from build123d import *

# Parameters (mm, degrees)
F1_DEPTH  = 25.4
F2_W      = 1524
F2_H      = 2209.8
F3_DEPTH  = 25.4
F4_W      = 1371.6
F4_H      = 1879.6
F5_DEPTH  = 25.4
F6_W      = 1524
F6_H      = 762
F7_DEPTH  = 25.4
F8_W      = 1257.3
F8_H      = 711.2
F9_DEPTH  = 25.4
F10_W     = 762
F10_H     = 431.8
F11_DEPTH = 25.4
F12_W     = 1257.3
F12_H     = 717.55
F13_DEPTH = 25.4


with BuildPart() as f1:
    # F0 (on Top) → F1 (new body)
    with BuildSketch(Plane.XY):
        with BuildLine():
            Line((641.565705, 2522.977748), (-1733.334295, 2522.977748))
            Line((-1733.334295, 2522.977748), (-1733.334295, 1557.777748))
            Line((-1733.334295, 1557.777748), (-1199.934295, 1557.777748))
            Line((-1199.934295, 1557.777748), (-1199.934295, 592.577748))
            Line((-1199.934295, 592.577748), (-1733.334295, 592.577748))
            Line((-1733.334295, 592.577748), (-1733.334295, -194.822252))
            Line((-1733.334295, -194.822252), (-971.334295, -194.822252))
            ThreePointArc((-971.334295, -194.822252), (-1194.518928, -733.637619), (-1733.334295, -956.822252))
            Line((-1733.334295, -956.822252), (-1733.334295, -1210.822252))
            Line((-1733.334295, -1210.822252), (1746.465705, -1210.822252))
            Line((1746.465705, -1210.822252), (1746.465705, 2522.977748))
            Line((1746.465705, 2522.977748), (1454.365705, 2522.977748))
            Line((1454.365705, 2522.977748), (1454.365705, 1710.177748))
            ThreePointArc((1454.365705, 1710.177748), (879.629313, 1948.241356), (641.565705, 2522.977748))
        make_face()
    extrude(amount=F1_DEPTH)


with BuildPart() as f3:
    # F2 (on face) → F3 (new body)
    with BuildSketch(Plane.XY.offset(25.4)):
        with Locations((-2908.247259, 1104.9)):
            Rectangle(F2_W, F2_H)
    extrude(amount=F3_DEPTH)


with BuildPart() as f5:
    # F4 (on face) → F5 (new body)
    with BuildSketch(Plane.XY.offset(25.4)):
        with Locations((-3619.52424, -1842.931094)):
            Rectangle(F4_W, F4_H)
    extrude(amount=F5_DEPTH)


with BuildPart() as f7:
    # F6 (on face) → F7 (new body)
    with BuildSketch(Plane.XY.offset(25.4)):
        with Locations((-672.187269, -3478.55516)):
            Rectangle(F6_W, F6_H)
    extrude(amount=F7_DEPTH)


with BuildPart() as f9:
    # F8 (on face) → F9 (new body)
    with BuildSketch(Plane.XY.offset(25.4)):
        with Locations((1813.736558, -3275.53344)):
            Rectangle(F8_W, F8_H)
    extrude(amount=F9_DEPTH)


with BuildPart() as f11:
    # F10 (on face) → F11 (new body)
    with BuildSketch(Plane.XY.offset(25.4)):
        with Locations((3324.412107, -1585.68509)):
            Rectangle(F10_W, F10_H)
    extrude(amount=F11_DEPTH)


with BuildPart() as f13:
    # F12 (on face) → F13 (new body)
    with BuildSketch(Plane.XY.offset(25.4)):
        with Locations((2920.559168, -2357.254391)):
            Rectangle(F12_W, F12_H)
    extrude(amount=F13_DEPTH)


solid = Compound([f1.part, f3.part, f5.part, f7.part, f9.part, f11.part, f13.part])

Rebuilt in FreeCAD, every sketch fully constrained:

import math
import FreeCAD as App
import Part
import Sketcher
Q = App.Units.Quantity


def add_polygon(sketch, points):
    """Adds a closed chain of lines whose ends are joined by coincident constraints."""
    first, n = sketch.GeometryCount, len(points)
    for a, b in zip(points, points[1:] + points[:1]):
        sketch.addGeometry(Part.LineSegment(App.Vector(*a, 0), App.Vector(*b, 0)), False)
    for i in range(n):
        sketch.addConstraint(Sketcher.Constraint("Coincident", first + i, 2, first + (i + 1) % n, 1))

doc = App.newDocument("Part")
body = doc.addObject("PartDesign::Body", "Body")

# Sketch on XY plane
sketch1 = body.newObject("Sketcher::SketchObject", "Sketch")
sketch1.AttachmentSupport = (doc.getObject("XY_Plane"), [""])
sketch1.MapMode = "FlatFace"
sketch1.addGeometry(Part.LineSegment(App.Vector(642, 2523, 0), App.Vector(-1733, 2523, 0)), False)
sketch1.addGeometry(Part.LineSegment(App.Vector(-1733, 2523, 0), App.Vector(-1733, 1558, 0)), False)
sketch1.addGeometry(Part.LineSegment(App.Vector(-1733, 1558, 0), App.Vector(-1200, 1558, 0)), False)
sketch1.addGeometry(Part.LineSegment(App.Vector(-1200, 1558, 0), App.Vector(-1200, 593, 0)), False)
sketch1.addGeometry(Part.LineSegment(App.Vector(-1200, 593, 0), App.Vector(-1733, 593, 0)), False)
sketch1.addGeometry(Part.LineSegment(App.Vector(-1733, 593, 0), App.Vector(-1733, -195, 0)), False)
sketch1.addGeometry(Part.LineSegment(App.Vector(-1733, -195, 0), App.Vector(-971, -195, 0)), False)
sketch1.addGeometry(Part.ArcOfCircle(Part.Circle(App.Vector(-1733, -195, 0), App.Vector(0, 0, 1), 762), math.radians(-90), math.radians(0)), False)
sketch1.addGeometry(Part.LineSegment(App.Vector(-1733, -957, 0), App.Vector(-1733, -1211, 0)), False)
sketch1.addGeometry(Part.LineSegment(App.Vector(-1733, -1211, 0), App.Vector(1746, -1211, 0)), False)
sketch1.addGeometry(Part.LineSegment(App.Vector(1746, -1211, 0), App.Vector(1746, 2523, 0)), False)
sketch1.addGeometry(Part.LineSegment(App.Vector(1746, 2523, 0), App.Vector(1454, 2523, 0)), False)
sketch1.addGeometry(Part.LineSegment(App.Vector(1454, 2523, 0), App.Vector(1454, 1710, 0)), False)
sketch1.addGeometry(Part.ArcOfCircle(Part.Circle(App.Vector(1454, 2523, 0), App.Vector(0, 0, 1), 813), math.radians(180), math.radians(270)), False)
sketch1.addConstraint(Sketcher.Constraint("Coincident", 0, 2, 1, 1))
sketch1.addConstraint(Sketcher.Constraint("Coincident", 1, 2, 2, 1))
sketch1.addConstraint(Sketcher.Constraint("Coincident", 2, 2, 3, 1))
sketch1.addConstraint(Sketcher.Constraint("Coincident", 3, 2, 4, 1))
sketch1.addConstraint(Sketcher.Constraint("Coincident", 4, 2, 5, 1))
sketch1.addConstraint(Sketcher.Constraint("Coincident", 5, 2, 6, 1))
sketch1.addConstraint(Sketcher.Constraint("Coincident", 6, 2, 7, 2))
sketch1.addConstraint(Sketcher.Constraint("Coincident", 7, 1, 8, 1))
sketch1.addConstraint(Sketcher.Constraint("Coincident", 8, 2, 9, 1))
sketch1.addConstraint(Sketcher.Constraint("Coincident", 9, 2, 10, 1))
sketch1.addConstraint(Sketcher.Constraint("Coincident", 10, 2, 11, 1))
sketch1.addConstraint(Sketcher.Constraint("Coincident", 11, 2, 12, 1))
sketch1.addConstraint(Sketcher.Constraint("Coincident", 12, 2, 13, 2))
sketch1.addConstraint(Sketcher.Constraint("Coincident", 13, 1, 0, 1))
sketch1.addConstraint(Sketcher.Constraint("Horizontal", 0))
sketch1.addConstraint(Sketcher.Constraint("Vertical", 1))
sketch1.addConstraint(Sketcher.Constraint("Horizontal", 2))
sketch1.addConstraint(Sketcher.Constraint("Vertical", 3))
sketch1.addConstraint(Sketcher.Constraint("Horizontal", 4))
sketch1.addConstraint(Sketcher.Constraint("Vertical", 5))
sketch1.addConstraint(Sketcher.Constraint("Horizontal", 6))
sketch1.addConstraint(Sketcher.Constraint("Vertical", 8))
sketch1.addConstraint(Sketcher.Constraint("Horizontal", 9))
sketch1.addConstraint(Sketcher.Constraint("Vertical", 10))
sketch1.addConstraint(Sketcher.Constraint("Horizontal", 11))
sketch1.addConstraint(Sketcher.Constraint("Vertical", 12))
sketch1.addConstraint(Sketcher.Constraint("Coincident", 5, 2, 7, 3))
sketch1.addConstraint(Sketcher.Constraint("Coincident", 11, 2, 13, 3))
sketch1.addConstraint(Sketcher.Constraint("Horizontal", 13, 3, 0, 2))
sketch1.addConstraint(Sketcher.Constraint("Vertical", 7, 3, 0, 2))
sketch1.addConstraint(Sketcher.Constraint("Equal", 1, 3))
sketch1.addConstraint(Sketcher.Constraint("Radius", 7, Q("30 in")))
sketch1.addConstraint(Sketcher.Constraint("Radius", 13, Q("32 in")))
sketch1.addConstraint(Sketcher.Constraint("DistanceX", 2, 1, 2, 2, Q("21 in")))
sketch1.addConstraint(Sketcher.Constraint("DistanceX", 9, 1, 9, 2, Q("137 in")))
sketch1.addConstraint(Sketcher.Constraint("DistanceY", 1, 2, 1, 1, Q("38 in")))
sketch1.addConstraint(Sketcher.Constraint("DistanceY", 5, 2, 5, 1, Q("31 in")))
sketch1.addConstraint(Sketcher.Constraint("DistanceY", 8, 2, 8, 1, Q("10 in")))
sketch1.addConstraint(Sketcher.Constraint("DistanceX", 0, 2, 0, 1, Q("93.5 in")))
sketch1.addConstraint(Sketcher.Constraint("DistanceX", 11, 2, 11, 1, Q("11.5 in")))
sketch1.addConstraint(Sketcher.Constraint("DistanceY", 7, 3, -1, 1, 194.822251))
sketch1.addConstraint(Sketcher.Constraint("DistanceX", 7, 3, -1, 1, 1733.334296))
pad1 = body.newObject("PartDesign::Pad", "Pad")
pad1.Profile = sketch1
pad1.Length = Q("1 in")
body2 = doc.addObject("PartDesign::Body", "Body001")

# Sketch on XY plane
sketch2 = body2.newObject("Sketcher::SketchObject", "Sketch001")
sketch2.AttachmentSupport = (doc.getObject("XY_Plane001"), [""])
sketch2.MapMode = "FlatFace"
sketch2.AttachmentOffset = App.Placement(App.Vector(0, 0, 1 * 25.4), App.Rotation())
add_polygon(sketch2, [(-3670, 2210), (-3670, 0), (-2146, 0), (-2146, 2210)])  # lines 0-3
sketch2.addConstraint(Sketcher.Constraint("Vertical", 0))
sketch2.addConstraint(Sketcher.Constraint("Horizontal", 1))
sketch2.addConstraint(Sketcher.Constraint("Vertical", 2))
sketch2.addConstraint(Sketcher.Constraint("Horizontal", 3))
sketch2.addConstraint(Sketcher.Constraint("PointOnObject", 0, 2, -1))
sketch2.addConstraint(Sketcher.Constraint("DistanceX", 1, 1, 1, 2, Q("60 in")))
sketch2.addConstraint(Sketcher.Constraint("DistanceY", 0, 2, 0, 1, Q("87 in")))
sketch2.addConstraint(Sketcher.Constraint("DistanceX", 0, 2, -1, 1, 3670.247259))
pad2 = body2.newObject("PartDesign::Pad", "Pad001")
pad2.Profile = sketch2
pad2.Length = Q("1 in")
body3 = doc.addObject("PartDesign::Body", "Body002")

# Sketch on XY plane
sketch3 = body3.newObject("Sketcher::SketchObject", "Sketch002")
sketch3.AttachmentSupport = (doc.getObject("XY_Plane002"), [""])
sketch3.MapMode = "FlatFace"
sketch3.AttachmentOffset = App.Placement(App.Vector(0, 0, 1 * 25.4), App.Rotation())
add_polygon(sketch3, [(-4305, -903), (-4305, -2783), (-2934, -2783), (-2934, -903)])  # lines 0-3
sketch3.addConstraint(Sketcher.Constraint("Vertical", 0))
sketch3.addConstraint(Sketcher.Constraint("Horizontal", 1))
sketch3.addConstraint(Sketcher.Constraint("Vertical", 2))
sketch3.addConstraint(Sketcher.Constraint("Horizontal", 3))
sketch3.addConstraint(Sketcher.Constraint("DistanceX", 1, 1, 1, 2, Q("54 in")))
sketch3.addConstraint(Sketcher.Constraint("DistanceY", 0, 2, 0, 1, Q("74 in")))
sketch3.addConstraint(Sketcher.Constraint("DistanceX", 0, 2, -1, 1, 4305.32424))
sketch3.addConstraint(Sketcher.Constraint("DistanceY", 0, 2, -1, 1, 2782.731094))
pad3 = body3.newObject("PartDesign::Pad", "Pad002")
pad3.Profile = sketch3
pad3.Length = Q("1 in")
body4 = doc.addObject("PartDesign::Body", "Body003")

# Sketch on XY plane
sketch4 = body4.newObject("Sketcher::SketchObject", "Sketch003")
sketch4.AttachmentSupport = (doc.getObject("XY_Plane003"), [""])
sketch4.MapMode = "FlatFace"
sketch4.AttachmentOffset = App.Placement(App.Vector(0, 0, 1 * 25.4), App.Rotation())
add_polygon(sketch4, [(-1434, -3098), (-1434, -3860), (90, -3860), (90, -3098)])  # lines 0-3
sketch4.addConstraint(Sketcher.Constraint("Vertical", 0))
sketch4.addConstraint(Sketcher.Constraint("Horizontal", 1))
sketch4.addConstraint(Sketcher.Constraint("Vertical", 2))
sketch4.addConstraint(Sketcher.Constraint("Horizontal", 3))
sketch4.addConstraint(Sketcher.Constraint("DistanceX", 1, 1, 1, 2, Q("60 in")))
sketch4.addConstraint(Sketcher.Constraint("DistanceY", 0, 2, 0, 1, Q("30 in")))
sketch4.addConstraint(Sketcher.Constraint("DistanceX", 0, 2, -1, 1, 1434.187269))
sketch4.addConstraint(Sketcher.Constraint("DistanceY", 0, 2, -1, 1, 3859.55516))
pad4 = body4.newObject("PartDesign::Pad", "Pad003")
pad4.Profile = sketch4
pad4.Length = Q("1 in")
body5 = doc.addObject("PartDesign::Body", "Body004")

# Sketch on XY plane
sketch5 = body5.newObject("Sketcher::SketchObject", "Sketch004")
sketch5.AttachmentSupport = (doc.getObject("XY_Plane004"), [""])
sketch5.MapMode = "FlatFace"
sketch5.AttachmentOffset = App.Placement(App.Vector(0, 0, 1 * 25.4), App.Rotation())
add_polygon(sketch5, [(1185, -2920), (1185, -3631), (2442, -3631), (2442, -2920)])  # lines 0-3
sketch5.addConstraint(Sketcher.Constraint("Vertical", 0))
sketch5.addConstraint(Sketcher.Constraint("Horizontal", 1))
sketch5.addConstraint(Sketcher.Constraint("Vertical", 2))
sketch5.addConstraint(Sketcher.Constraint("Horizontal", 3))
sketch5.addConstraint(Sketcher.Constraint("DistanceY", 0, 2, 0, 1, Q("28 in")))
sketch5.addConstraint(Sketcher.Constraint("DistanceX", 1, 1, 1, 2, Q("49.5 in")))
sketch5.addConstraint(Sketcher.Constraint("DistanceX", -1, 1, 0, 2, 1185.086558))
sketch5.addConstraint(Sketcher.Constraint("DistanceY", 0, 2, -1, 1, 3631.13344))
pad5 = body5.newObject("PartDesign::Pad", "Pad004")
pad5.Profile = sketch5
pad5.Length = Q("1 in")
body6 = doc.addObject("PartDesign::Body", "Body005")

# Sketch on XY plane
sketch6 = body6.newObject("Sketcher::SketchObject", "Sketch005")
sketch6.AttachmentSupport = (doc.getObject("XY_Plane005"), [""])
sketch6.MapMode = "FlatFace"
sketch6.AttachmentOffset = App.Placement(App.Vector(0, 0, 1 * 25.4), App.Rotation())
add_polygon(sketch6, [(2943, -1370), (2943, -1802), (3705, -1802), (3705, -1370)])  # lines 0-3
sketch6.addConstraint(Sketcher.Constraint("Vertical", 0))
sketch6.addConstraint(Sketcher.Constraint("Horizontal", 1))
sketch6.addConstraint(Sketcher.Constraint("Vertical", 2))
sketch6.addConstraint(Sketcher.Constraint("Horizontal", 3))
sketch6.addConstraint(Sketcher.Constraint("DistanceX", 1, 1, 1, 2, Q("30 in")))
sketch6.addConstraint(Sketcher.Constraint("DistanceY", 0, 2, 0, 1, Q("17 in")))
sketch6.addConstraint(Sketcher.Constraint("DistanceY", 0, 2, -1, 1, 1801.58509))
sketch6.addConstraint(Sketcher.Constraint("DistanceX", -1, 1, 0, 2, 2943.412107))
pad6 = body6.newObject("PartDesign::Pad", "Pad005")
pad6.Profile = sketch6
pad6.Length = Q("1 in")
body7 = doc.addObject("PartDesign::Body", "Body006")

# Sketch on XY plane
sketch7 = body7.newObject("Sketcher::SketchObject", "Sketch006")
sketch7.AttachmentSupport = (doc.getObject("XY_Plane006"), [""])
sketch7.MapMode = "FlatFace"
sketch7.AttachmentOffset = App.Placement(App.Vector(0, 0, 1 * 25.4), App.Rotation())
add_polygon(sketch7, [(2292, -1998), (2292, -2716), (3549, -2716), (3549, -1998)])  # lines 0-3
sketch7.addConstraint(Sketcher.Constraint("Vertical", 0))
sketch7.addConstraint(Sketcher.Constraint("Horizontal", 1))
sketch7.addConstraint(Sketcher.Constraint("Vertical", 2))
sketch7.addConstraint(Sketcher.Constraint("Horizontal", 3))
sketch7.addConstraint(Sketcher.Constraint("DistanceX", 1, 1, 1, 2, Q("49.5 in")))
sketch7.addConstraint(Sketcher.Constraint("DistanceY", 0, 2, 0, 1, Q("28.25 in")))
sketch7.addConstraint(Sketcher.Constraint("DistanceX", -1, 1, 0, 2, 2291.909168))
sketch7.addConstraint(Sketcher.Constraint("DistanceY", 0, 2, -1, 1, 2716.029391))
pad7 = body7.newObject("PartDesign::Pad", "Pad006")
pad7.Profile = sketch7
pad7.Length = Q("1 in")

doc.recompute()
